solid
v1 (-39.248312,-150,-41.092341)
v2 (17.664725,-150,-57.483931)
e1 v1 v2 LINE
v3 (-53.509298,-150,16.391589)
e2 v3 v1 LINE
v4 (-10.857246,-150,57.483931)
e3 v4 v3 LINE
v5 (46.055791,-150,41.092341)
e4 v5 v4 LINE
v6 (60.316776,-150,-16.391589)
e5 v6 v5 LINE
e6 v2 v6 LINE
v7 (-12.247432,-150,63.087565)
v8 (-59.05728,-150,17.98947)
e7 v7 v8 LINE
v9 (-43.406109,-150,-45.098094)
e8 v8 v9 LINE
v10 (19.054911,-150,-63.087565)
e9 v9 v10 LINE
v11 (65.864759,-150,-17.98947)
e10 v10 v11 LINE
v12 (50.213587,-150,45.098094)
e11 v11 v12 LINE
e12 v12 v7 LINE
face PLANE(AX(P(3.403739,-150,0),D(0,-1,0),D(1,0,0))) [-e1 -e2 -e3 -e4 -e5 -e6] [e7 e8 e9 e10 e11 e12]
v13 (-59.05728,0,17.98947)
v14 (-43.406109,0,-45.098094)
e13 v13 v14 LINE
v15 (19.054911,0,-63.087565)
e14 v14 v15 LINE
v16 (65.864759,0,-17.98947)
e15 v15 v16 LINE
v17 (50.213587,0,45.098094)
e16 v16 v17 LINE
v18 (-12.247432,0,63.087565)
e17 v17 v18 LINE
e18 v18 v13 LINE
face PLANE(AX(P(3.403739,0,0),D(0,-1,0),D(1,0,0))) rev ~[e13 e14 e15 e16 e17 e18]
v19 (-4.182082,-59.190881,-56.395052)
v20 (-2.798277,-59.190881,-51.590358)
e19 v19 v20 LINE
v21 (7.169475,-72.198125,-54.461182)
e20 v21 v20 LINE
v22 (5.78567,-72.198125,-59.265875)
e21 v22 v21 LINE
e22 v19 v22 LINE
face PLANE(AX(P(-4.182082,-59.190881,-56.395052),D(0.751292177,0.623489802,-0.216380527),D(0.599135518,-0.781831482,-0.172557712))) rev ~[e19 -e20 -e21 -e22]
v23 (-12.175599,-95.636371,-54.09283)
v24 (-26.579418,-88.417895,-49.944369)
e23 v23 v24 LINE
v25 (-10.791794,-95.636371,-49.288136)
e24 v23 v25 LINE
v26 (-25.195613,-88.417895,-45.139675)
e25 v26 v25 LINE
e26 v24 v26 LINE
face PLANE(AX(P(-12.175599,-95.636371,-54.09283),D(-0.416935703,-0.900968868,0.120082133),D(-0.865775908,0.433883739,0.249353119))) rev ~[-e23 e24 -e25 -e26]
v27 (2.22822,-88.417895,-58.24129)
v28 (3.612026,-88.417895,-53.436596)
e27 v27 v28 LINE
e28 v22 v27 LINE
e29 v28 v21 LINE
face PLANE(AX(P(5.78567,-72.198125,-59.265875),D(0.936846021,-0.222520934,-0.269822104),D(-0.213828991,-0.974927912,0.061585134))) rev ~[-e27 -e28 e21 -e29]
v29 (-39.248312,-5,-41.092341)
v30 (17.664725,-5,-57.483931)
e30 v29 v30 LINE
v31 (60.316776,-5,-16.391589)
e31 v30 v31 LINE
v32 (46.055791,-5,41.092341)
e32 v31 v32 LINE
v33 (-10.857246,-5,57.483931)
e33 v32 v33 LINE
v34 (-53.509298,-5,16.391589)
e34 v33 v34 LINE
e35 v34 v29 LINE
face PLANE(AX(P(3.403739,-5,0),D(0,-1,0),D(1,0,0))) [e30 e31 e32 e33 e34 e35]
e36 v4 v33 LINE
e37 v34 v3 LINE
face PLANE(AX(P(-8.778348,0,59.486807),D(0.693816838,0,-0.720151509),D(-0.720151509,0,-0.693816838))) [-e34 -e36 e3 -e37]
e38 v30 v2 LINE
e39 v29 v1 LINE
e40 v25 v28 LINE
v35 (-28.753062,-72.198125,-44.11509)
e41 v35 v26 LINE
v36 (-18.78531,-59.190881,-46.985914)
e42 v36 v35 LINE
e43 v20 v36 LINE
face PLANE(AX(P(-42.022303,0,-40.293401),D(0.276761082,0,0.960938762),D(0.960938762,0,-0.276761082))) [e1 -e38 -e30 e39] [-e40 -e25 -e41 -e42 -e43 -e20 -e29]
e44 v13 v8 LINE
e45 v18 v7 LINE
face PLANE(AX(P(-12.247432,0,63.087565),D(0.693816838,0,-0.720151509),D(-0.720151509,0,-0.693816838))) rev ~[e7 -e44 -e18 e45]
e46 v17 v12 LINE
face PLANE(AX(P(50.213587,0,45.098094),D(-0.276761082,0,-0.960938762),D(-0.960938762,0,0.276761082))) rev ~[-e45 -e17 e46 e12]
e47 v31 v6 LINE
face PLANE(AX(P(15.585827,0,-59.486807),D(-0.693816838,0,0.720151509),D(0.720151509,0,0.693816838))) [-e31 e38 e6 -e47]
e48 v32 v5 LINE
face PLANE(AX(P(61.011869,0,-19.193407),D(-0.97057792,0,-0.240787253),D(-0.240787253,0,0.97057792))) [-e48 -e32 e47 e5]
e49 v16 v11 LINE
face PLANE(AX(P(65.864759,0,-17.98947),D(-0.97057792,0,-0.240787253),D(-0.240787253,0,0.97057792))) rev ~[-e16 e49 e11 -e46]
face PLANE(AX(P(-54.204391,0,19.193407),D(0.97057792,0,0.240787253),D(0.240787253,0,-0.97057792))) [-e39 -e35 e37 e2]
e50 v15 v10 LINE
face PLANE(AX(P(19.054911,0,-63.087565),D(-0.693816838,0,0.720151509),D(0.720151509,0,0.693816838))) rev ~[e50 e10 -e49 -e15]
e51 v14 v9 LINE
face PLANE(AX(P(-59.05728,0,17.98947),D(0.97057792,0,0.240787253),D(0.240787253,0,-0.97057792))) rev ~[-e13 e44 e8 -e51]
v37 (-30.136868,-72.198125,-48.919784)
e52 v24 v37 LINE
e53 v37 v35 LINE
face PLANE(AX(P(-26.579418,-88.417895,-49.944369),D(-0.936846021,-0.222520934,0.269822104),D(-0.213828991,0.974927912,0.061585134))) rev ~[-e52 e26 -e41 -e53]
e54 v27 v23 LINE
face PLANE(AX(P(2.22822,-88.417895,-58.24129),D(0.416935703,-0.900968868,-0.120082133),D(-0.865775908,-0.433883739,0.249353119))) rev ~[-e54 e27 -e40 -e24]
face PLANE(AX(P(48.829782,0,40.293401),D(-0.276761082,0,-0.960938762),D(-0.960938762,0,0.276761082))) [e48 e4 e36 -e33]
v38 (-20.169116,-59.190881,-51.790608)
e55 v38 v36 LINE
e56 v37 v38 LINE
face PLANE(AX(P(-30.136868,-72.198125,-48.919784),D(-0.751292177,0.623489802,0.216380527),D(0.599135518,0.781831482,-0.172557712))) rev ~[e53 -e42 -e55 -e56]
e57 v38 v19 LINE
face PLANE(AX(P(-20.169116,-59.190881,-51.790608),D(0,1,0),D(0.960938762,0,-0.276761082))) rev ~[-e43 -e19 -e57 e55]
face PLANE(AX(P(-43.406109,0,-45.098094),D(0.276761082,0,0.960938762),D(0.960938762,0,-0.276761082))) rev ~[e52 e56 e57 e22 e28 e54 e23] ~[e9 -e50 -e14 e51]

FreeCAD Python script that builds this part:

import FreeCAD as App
import Part
import Sketcher


def faces_at(feature, points):
    """Names of the faces that lie closest to the given points."""
    faces = feature.Shape.Faces
    near = lambda p: min(range(len(faces)), key=lambda i: faces[i].distToShape(Part.Vertex(*p))[0])
    return sorted({f"Face{near(p) + 1}" for p in points})

doc = App.newDocument("Part")
body = doc.addObject("PartDesign::Body", "Body")

sketch1 = body.newObject("Sketcher::SketchObject", "Sketch")
sketch1.AttachmentSupport = (doc.getObject("XZ_Plane"), [""])
sketch1.MapMode = "FlatFace"
sketch1.addGeometry([
    Part.LineSegment(App.Vector(-12, 63, 0), App.Vector(-59, 18, 0)),
    Part.LineSegment(App.Vector(-59, 18, 0), App.Vector(-43, -45, 0)),
    Part.LineSegment(App.Vector(-43, -45, 0), App.Vector(19, -63, 0)),
    Part.LineSegment(App.Vector(19, -63, 0), App.Vector(66, -18, 0)),
    Part.LineSegment(App.Vector(66, -18, 0), App.Vector(50, 45, 0)),
    Part.LineSegment(App.Vector(50, 45, 0), App.Vector(-12, 63, 0)),
], False)
sketch1.addConstraint([
    Sketcher.Constraint("Coincident", 0, 2, 1, 1),
    Sketcher.Constraint("Coincident", 1, 2, 2, 1),
    Sketcher.Constraint("Coincident", 2, 2, 3, 1),
    Sketcher.Constraint("Coincident", 3, 2, 4, 1),
    Sketcher.Constraint("Coincident", 4, 2, 5, 1),
    Sketcher.Constraint("Coincident", 5, 2, 0, 1),
    Sketcher.Constraint("Parallel", 0, 3),
    Sketcher.Constraint("Parallel", 1, 4),
    Sketcher.Constraint("Parallel", 2, 5),
    Sketcher.Constraint("Equal", 0, 1),
    Sketcher.Constraint("Equal", 1, 2),
    Sketcher.Constraint("Equal", 2, 3),
    Sketcher.Constraint("Distance", 0, 65.0),
    Sketcher.Constraint("DistanceX", 0, 2, -1, 1, 59.05728),
    Sketcher.Constraint("DistanceY", -1, 1, 0, 2, 17.98947),
    Sketcher.Constraint("DistanceX", 1, 2, -1, 1, 43.406109),
    Sketcher.Constraint("DistanceX", -1, 1, 2, 2, 19.054911),
    Sketcher.Constraint("DistanceX", -1, 1, 3, 2, 65.864759),
])
pad1 = body.newObject("PartDesign::Pad", "Pad")
pad1.Profile = sketch1
pad1.Length = 150
doc.recompute()

thickness = body.newObject("PartDesign::Thickness", "Thickness")
thickness.Base = (pad1, faces_at(pad1, [(3.404, -150, 0)]))
thickness.Value = 5
thickness.Reversed = True
thickness.Join = "Arc"

sketch2 = body.newObject("Sketcher::SketchObject", "Sketch001")
sketch2.Placement = App.Placement(App.Vector(-15.318623, 0, -53.187604), App.Rotation(App.Vector(0.960938762, 0, -0.276761082), App.Vector(0, -1.000000001, 0), App.Vector(-0.276761082, 0, -0.960938762), "ZXY"))
sketch2.addGeometry([
    Part.LineSegment(App.Vector(-5, 59, 0), App.Vector(12, 59, 0)),
    Part.LineSegment(App.Vector(12, 59, 0), App.Vector(22, 72, 0)),
    Part.LineSegment(App.Vector(22, 72, 0), App.Vector(18, 88, 0)),
    Part.LineSegment(App.Vector(18, 88, 0), App.Vector(3, 96, 0)),
    Part.LineSegment(App.Vector(3, 96, 0), App.Vector(-12, 88, 0)),
    Part.LineSegment(App.Vector(-12, 88, 0), App.Vector(-15, 72, 0)),
    Part.LineSegment(App.Vector(-15, 72, 0), App.Vector(-5, 59, 0)),
], False)
sketch2.addConstraint([
    Sketcher.Constraint("Coincident", 0, 2, 1, 1),
    Sketcher.Constraint("Coincident", 1, 2, 2, 1),
    Sketcher.Constraint("Coincident", 2, 2, 3, 1),
    Sketcher.Constraint("Coincident", 3, 2, 4, 1),
    Sketcher.Constraint("Coincident", 4, 2, 5, 1),
    Sketcher.Constraint("Coincident", 5, 2, 6, 1),
    Sketcher.Constraint("Coincident", 6, 2, 0, 1),
    Sketcher.Constraint("Horizontal", 0),
    Sketcher.Constraint("Horizontal", 2, 2, 4, 2),
    Sketcher.Constraint("Horizontal", 1, 2, 5, 2),
    Sketcher.Constraint("Equal", 1, 2),
    Sketcher.Constraint("Equal", 2, 3),
    Sketcher.Constraint("Equal", 3, 4),
    Sketcher.Constraint("Equal", 4, 5),
    Sketcher.Constraint("Equal", 5, 6),
    Sketcher.Constraint("DistanceX", 0, 1, 0, 2, 16.636891),
    Sketcher.Constraint("Distance", 1, 16.636891),
    Sketcher.Constraint("DistanceX", -1, 1, 0, 2, 11.58923),
    Sketcher.Constraint("DistanceY", -1, 1, 0, 2, 59.190881),
    Sketcher.Constraint("DistanceY", -1, 1, 3, 2, 95.636371),
    Sketcher.Constraint("DistanceX", 0, 2, 1, 2, 10.372932),
])
pocket1 = body.newObject("PartDesign::Pocket", "Pocket")
pocket1.Profile = sketch2
pocket1.Length = 25

doc.recompute()
